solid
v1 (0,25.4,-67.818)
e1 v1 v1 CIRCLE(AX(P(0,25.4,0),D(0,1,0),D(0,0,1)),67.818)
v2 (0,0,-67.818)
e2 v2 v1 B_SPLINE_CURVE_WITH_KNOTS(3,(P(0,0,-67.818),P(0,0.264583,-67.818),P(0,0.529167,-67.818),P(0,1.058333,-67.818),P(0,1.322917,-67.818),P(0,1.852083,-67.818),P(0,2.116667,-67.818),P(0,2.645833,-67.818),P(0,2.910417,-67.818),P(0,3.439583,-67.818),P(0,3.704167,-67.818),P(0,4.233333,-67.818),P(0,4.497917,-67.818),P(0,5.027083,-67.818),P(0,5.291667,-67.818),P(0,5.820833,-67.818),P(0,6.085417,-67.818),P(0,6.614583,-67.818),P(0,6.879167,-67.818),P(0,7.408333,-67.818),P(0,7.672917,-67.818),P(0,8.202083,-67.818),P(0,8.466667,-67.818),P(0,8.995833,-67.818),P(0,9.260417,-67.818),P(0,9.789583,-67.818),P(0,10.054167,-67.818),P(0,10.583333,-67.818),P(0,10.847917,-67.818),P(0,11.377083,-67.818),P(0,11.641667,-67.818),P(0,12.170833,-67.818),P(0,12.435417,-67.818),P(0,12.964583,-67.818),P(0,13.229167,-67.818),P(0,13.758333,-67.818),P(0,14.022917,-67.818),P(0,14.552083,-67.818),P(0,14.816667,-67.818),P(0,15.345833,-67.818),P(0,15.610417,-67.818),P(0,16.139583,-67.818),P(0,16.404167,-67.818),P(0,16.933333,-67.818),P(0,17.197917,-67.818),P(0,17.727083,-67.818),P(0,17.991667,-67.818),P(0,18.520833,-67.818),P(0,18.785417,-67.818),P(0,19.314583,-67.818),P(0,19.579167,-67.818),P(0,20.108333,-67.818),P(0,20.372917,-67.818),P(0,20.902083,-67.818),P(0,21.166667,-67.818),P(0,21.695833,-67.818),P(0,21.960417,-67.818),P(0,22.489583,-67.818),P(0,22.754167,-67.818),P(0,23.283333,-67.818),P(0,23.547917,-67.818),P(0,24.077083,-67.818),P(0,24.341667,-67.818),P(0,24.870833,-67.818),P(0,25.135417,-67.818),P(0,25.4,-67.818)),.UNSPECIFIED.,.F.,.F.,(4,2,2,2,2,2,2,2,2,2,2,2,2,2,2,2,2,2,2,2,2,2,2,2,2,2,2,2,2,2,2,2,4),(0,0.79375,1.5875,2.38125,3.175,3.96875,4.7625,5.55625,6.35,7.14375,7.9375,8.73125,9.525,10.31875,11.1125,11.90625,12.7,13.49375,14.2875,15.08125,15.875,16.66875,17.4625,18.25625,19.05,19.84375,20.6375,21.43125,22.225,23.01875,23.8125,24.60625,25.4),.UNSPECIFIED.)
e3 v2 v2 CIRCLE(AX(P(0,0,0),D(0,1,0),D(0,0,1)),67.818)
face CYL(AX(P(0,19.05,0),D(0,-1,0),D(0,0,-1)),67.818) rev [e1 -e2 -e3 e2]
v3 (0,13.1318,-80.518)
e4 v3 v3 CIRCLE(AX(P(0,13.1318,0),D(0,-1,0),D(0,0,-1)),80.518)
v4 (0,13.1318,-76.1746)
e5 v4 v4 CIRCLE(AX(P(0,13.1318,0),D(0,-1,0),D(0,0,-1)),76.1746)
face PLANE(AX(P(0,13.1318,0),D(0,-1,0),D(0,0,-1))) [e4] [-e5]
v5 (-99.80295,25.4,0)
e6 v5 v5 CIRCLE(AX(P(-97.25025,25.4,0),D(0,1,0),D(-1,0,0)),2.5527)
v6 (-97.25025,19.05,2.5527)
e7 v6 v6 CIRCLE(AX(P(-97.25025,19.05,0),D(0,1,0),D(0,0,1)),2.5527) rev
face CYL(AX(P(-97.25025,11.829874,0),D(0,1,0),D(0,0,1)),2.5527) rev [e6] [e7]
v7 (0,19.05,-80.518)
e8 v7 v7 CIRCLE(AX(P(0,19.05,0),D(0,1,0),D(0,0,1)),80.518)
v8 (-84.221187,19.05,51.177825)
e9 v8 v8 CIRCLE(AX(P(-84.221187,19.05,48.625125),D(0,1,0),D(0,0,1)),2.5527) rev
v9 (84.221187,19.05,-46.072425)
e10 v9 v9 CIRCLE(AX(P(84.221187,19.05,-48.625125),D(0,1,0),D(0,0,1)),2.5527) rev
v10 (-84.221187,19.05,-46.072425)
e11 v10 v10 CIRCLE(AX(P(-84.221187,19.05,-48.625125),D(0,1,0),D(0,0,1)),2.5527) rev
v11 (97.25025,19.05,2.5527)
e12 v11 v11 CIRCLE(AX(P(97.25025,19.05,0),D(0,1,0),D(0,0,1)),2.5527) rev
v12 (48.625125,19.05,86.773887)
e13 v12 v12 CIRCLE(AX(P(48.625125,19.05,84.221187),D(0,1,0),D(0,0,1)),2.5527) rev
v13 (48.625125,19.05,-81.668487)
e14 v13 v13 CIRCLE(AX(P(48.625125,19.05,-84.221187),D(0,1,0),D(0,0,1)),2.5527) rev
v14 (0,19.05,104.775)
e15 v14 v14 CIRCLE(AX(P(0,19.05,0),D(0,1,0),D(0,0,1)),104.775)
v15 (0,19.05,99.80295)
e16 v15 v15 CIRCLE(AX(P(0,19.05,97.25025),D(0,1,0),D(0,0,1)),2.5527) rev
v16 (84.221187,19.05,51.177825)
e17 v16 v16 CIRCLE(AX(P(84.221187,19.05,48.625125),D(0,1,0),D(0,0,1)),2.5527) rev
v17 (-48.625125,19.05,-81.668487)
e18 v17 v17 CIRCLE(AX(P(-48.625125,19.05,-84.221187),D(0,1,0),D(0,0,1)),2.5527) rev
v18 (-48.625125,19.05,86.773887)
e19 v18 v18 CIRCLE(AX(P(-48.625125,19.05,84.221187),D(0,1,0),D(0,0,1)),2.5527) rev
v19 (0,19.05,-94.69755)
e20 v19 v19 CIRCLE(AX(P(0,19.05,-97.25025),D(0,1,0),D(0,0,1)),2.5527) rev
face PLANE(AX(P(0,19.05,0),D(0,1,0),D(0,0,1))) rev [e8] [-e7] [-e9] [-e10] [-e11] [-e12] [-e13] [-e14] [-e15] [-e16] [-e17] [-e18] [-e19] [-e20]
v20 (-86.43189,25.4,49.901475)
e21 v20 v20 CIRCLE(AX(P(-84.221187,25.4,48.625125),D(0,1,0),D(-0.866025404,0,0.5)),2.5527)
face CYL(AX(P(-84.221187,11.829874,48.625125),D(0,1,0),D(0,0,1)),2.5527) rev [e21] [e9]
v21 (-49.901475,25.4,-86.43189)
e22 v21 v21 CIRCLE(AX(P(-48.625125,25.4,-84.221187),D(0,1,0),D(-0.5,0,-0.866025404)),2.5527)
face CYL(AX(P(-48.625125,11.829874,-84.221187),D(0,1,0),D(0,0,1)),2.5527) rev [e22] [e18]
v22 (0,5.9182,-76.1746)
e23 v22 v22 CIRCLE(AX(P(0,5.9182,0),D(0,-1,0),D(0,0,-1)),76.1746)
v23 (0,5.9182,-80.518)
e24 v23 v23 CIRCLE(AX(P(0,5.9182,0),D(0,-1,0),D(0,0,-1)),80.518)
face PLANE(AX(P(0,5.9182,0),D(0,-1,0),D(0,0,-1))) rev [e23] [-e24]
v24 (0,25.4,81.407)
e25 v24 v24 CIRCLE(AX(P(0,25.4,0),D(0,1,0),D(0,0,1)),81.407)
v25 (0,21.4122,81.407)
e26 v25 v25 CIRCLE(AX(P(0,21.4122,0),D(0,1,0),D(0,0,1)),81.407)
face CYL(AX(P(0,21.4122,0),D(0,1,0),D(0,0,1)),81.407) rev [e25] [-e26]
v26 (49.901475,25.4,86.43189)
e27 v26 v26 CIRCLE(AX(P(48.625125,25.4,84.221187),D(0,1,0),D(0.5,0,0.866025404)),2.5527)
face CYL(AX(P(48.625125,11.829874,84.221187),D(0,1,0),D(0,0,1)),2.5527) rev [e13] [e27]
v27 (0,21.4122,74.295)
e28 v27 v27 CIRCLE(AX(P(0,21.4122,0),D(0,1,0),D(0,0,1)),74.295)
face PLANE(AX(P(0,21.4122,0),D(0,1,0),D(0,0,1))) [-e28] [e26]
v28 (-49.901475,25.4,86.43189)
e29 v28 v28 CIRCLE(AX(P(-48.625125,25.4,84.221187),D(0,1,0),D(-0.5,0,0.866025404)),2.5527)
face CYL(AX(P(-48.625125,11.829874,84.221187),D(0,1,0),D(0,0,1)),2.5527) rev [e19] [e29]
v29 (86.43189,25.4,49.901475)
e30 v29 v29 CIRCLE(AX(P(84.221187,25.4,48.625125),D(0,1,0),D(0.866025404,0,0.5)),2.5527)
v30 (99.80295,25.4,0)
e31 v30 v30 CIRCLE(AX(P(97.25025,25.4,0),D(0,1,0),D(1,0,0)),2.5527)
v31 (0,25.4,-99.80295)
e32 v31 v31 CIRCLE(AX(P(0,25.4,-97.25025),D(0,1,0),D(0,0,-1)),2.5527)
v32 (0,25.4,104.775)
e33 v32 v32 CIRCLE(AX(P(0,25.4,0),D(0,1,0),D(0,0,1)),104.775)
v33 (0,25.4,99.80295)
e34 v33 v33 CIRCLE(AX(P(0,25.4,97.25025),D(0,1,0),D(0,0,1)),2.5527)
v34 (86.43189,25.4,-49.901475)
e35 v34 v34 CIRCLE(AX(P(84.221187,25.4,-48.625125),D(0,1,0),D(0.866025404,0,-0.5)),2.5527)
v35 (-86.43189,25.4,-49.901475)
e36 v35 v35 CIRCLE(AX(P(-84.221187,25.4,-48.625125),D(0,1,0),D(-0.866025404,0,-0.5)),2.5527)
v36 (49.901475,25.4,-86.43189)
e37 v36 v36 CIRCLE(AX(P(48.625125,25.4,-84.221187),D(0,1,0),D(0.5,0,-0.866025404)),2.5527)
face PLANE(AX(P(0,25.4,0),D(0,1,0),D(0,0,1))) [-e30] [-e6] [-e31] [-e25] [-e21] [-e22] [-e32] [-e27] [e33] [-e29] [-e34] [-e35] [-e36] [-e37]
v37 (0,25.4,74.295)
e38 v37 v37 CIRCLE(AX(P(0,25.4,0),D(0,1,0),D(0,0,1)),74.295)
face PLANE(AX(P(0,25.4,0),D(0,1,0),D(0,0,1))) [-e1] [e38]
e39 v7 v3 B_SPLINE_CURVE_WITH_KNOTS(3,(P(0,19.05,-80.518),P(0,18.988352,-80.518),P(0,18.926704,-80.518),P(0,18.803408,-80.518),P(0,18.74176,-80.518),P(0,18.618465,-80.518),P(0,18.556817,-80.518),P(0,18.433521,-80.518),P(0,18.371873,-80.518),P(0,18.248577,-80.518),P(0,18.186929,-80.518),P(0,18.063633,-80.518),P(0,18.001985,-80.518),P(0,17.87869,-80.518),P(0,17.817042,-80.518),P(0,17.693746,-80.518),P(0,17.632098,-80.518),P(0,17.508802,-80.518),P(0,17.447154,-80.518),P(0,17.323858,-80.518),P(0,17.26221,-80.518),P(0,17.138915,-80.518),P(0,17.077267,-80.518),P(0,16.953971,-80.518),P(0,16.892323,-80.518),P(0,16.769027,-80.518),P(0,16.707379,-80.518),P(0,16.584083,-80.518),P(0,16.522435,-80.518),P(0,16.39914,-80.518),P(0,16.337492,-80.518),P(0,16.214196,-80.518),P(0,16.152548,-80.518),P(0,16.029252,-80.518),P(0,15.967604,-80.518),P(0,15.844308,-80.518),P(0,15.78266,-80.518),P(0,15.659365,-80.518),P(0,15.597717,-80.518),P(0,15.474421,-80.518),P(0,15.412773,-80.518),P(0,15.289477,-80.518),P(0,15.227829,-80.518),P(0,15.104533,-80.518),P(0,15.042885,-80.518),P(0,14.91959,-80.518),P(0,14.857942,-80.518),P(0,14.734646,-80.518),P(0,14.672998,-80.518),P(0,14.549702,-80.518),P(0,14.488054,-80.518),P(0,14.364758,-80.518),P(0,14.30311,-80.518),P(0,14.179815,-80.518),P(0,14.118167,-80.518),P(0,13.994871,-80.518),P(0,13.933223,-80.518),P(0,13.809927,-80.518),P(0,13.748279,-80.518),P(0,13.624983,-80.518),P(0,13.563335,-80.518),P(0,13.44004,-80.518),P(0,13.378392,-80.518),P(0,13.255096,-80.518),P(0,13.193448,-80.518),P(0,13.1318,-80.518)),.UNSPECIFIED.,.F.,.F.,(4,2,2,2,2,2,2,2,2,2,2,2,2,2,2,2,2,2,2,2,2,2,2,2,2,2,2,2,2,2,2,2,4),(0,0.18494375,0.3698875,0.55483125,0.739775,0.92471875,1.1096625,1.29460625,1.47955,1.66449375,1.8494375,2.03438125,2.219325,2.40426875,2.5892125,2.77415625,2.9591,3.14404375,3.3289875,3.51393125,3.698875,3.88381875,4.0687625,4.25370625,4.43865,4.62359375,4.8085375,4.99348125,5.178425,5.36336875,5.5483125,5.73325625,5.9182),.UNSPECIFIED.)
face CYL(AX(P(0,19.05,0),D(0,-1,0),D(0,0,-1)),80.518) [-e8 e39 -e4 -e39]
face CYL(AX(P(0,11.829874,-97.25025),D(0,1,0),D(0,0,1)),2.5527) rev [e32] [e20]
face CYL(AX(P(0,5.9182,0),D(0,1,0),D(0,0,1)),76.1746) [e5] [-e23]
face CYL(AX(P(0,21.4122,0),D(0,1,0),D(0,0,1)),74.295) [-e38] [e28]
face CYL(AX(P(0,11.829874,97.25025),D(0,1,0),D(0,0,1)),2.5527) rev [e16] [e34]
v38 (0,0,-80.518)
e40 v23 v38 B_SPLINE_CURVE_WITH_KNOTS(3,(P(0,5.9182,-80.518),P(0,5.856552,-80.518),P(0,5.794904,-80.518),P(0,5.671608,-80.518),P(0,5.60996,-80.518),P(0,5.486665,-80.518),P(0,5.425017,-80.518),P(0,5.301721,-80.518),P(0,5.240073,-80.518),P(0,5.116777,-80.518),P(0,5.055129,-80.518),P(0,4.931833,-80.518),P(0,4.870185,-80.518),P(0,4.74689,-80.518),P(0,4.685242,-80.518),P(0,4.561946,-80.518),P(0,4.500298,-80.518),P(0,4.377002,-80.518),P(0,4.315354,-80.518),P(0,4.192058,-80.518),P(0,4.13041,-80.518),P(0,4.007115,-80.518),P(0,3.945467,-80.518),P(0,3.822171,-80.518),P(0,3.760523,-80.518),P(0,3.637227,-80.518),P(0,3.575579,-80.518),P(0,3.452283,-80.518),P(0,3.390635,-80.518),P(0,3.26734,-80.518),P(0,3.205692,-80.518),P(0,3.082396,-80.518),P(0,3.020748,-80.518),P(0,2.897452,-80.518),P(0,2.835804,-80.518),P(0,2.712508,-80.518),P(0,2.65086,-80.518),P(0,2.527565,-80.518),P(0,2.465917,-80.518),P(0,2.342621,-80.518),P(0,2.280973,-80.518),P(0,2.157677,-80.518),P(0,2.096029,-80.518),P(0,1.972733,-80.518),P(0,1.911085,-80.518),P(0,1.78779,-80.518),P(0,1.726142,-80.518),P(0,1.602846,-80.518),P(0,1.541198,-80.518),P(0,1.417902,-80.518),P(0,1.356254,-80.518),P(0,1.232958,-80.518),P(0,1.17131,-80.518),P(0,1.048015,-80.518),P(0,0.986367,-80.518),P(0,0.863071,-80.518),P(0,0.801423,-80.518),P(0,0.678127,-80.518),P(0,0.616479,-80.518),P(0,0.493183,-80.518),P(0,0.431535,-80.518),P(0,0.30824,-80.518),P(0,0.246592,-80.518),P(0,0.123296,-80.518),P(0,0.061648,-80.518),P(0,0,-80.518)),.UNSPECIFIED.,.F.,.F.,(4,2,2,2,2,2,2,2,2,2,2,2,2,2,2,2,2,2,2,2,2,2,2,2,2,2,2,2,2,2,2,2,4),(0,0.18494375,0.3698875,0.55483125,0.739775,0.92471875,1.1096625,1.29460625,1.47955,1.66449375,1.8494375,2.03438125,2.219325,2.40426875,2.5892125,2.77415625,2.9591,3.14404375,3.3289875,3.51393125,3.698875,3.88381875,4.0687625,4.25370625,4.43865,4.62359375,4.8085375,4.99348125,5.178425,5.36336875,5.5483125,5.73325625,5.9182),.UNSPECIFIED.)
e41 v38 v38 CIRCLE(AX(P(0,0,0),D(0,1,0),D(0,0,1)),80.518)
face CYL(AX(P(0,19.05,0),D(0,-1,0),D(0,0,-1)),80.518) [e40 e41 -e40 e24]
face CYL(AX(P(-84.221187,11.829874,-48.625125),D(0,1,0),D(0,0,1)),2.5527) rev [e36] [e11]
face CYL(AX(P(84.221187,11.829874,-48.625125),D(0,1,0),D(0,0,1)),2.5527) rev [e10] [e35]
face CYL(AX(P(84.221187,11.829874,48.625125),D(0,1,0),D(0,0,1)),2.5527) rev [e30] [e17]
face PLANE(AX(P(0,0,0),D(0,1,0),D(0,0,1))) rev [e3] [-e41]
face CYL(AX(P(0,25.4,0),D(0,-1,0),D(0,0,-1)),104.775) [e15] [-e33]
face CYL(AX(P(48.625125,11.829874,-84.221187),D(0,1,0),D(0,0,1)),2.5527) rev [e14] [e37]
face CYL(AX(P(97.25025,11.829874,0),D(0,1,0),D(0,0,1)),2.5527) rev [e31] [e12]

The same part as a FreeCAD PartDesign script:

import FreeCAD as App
import Part
import Sketcher
from FreeCAD import Vector
Q = App.Units.Quantity

doc = App.newDocument("Part")
body = doc.addObject("PartDesign::Body", "Body")

sketch1 = body.newObject("Sketcher::SketchObject", "Sketch")
sketch1.AttachmentSupport = (doc.getObject("XZ_Plane"), [""])
sketch1.MapMode = "FlatFace"
sketch1.addGeometry([
    Part.Circle(Vector(0, 0, 0), Vector(0, 0, 1), 80.518),
    Part.Circle(Vector(0, 0, 0), Vector(0, 0, 1), 67.818),
], False)
sketch1.addConstraint([
    Sketcher.Constraint("Coincident", 0, 3, -1, 1),
    Sketcher.Constraint("Coincident", 1, 3, -1, 1),
    Sketcher.Constraint("Diameter", 0, Q("6.34 in")),
    Sketcher.Constraint("Diameter", 1, Q("5.34 in")),
])
pad1 = body.newObject("PartDesign::Pad", "Pad")
pad1.Profile = sketch1
pad1.Length = Q("0.75 in")
pad1.Reversed = True

sketch2 = body.newObject("Sketcher::SketchObject", "Sketch001")
sketch2.AttachmentSupport = (doc.getObject("XZ_Plane"), [""])
sketch2.MapMode = "FlatFace"
sketch2.AttachmentOffset = App.Placement(Vector(0, 0, -0.75 * 25.4), App.Rotation())
sketch2.addGeometry([
    Part.Circle(Vector(0, 0, 0), Vector(0, 0, 1), 104.775),
    Part.Circle(Vector(0, 0, 0), Vector(0, 0, 1), 67.818),
], False)
sketch2.addConstraint([
    Sketcher.Constraint("Coincident", 0, 3, -1, 1),
    Sketcher.Constraint("Coincident", 1, 3, -1, 1),
    Sketcher.Constraint("Diameter", 0, Q("8.25 in")),
    Sketcher.Constraint("Diameter", 1, Q("5.34 in")),
])
pad2 = body.newObject("PartDesign::Pad", "Pad001")
pad2.Profile = sketch2
pad2.Length = Q("0.25 in")
pad2.Reversed = True

sketch3 = body.newObject("Sketcher::SketchObject", "Sketch002")
sketch3.AttachmentSupport = (doc.getObject("XZ_Plane"), [""])
sketch3.MapMode = "FlatFace"
sketch3.AttachmentOffset = App.Placement(Vector(0, 0, -1 * 25.4), App.Rotation())
sketch3.addGeometry([
    Part.Circle(Vector(0, 0, 0), Vector(0, 0, 1), 81.407),
    Part.Circle(Vector(0, 0, 0), Vector(0, 0, 1), 74.295),
], False)
sketch3.addConstraint([
    Sketcher.Constraint("Coincident", 0, 3, -1, 1),
    Sketcher.Constraint("Coincident", 1, 3, -1, 1),
    Sketcher.Constraint("Diameter", 0, Q("6.41 in")),
    Sketcher.Constraint("Diameter", 1, Q("5.85 in")),
])
pocket1 = body.newObject("PartDesign::Pocket", "Pocket")
pocket1.Profile = sketch3
pocket1.Length = Q("0.157 in")
pocket1.Reversed = True

sketch4 = body.newObject("Sketcher::SketchObject", "Sketch003")
sketch4.AttachmentSupport = (doc.getObject("XZ_Plane"), [""])
sketch4.MapMode = "FlatFace"
sketch4.AttachmentOffset = App.Placement(Vector(0, 0, -1 * 25.4), App.Rotation())
sketch4.addGeometry(Part.Circle(Vector(0, 97.25025, 0), Vector(0, 0, 1), 2.5527), False)
sketch4.addConstraint([
    Sketcher.Constraint("PointOnObject", 0, 3, -2),
    Sketcher.Constraint("Diameter", 0, Q("0.201 in")),
    Sketcher.Constraint("DistanceY", -1, 1, 0, 3, 97.25025),
])
pocket2 = body.newObject("PartDesign::Pocket", "Pocket001")
pocket2.Profile = sketch4
pocket2.Length = Q("0.25 in")
pocket2.Reversed = True
doc.recompute()

polarpattern = body.newObject("PartDesign::PolarPattern", "PolarPattern")
polarpattern.Originals = [pocket2]
polarpattern.Axis = (doc.getObject("Y_Axis"), [""])
polarpattern.Angle = 360
polarpattern.Occurrences = 12
body.Tip = polarpattern

sketch5 = body.newObject("Sketcher::SketchObject", "Sketch004")
sketch5.AttachmentSupport = (doc.getObject("XZ_Plane"), [""])
sketch5.MapMode = "FlatFace"
sketch5.AttachmentOffset = App.Placement(Vector(0, 0, -0.375 * 25.4), App.Rotation())
sketch5.addGeometry([
    Part.Circle(Vector(0, 0, 0), Vector(0, 0, 1), 80.518),
    Part.Circle(Vector(0, 0, 0), Vector(0, 0, 1), 76.1746),
], False)
sketch5.addConstraint([
    Sketcher.Constraint("Coincident", 0, 3, -1, 1),
    Sketcher.Constraint("Coincident", 1, 3, -1, 1),
    Sketcher.Constraint("Diameter", 0, Q("6.34 in")),
    Sketcher.Constraint("Diameter", 1, Q("5.998 in")),
])
pocket3 = body.newObject("PartDesign::Pocket", "Pocket002")
pocket3.Profile = sketch5
pocket3.Type = "TwoLengths"
pocket3.Length = Q("0.142 in")
pocket3.Length2 = Q("0.142 in")
pocket3.Reversed = True

doc.recompute()
